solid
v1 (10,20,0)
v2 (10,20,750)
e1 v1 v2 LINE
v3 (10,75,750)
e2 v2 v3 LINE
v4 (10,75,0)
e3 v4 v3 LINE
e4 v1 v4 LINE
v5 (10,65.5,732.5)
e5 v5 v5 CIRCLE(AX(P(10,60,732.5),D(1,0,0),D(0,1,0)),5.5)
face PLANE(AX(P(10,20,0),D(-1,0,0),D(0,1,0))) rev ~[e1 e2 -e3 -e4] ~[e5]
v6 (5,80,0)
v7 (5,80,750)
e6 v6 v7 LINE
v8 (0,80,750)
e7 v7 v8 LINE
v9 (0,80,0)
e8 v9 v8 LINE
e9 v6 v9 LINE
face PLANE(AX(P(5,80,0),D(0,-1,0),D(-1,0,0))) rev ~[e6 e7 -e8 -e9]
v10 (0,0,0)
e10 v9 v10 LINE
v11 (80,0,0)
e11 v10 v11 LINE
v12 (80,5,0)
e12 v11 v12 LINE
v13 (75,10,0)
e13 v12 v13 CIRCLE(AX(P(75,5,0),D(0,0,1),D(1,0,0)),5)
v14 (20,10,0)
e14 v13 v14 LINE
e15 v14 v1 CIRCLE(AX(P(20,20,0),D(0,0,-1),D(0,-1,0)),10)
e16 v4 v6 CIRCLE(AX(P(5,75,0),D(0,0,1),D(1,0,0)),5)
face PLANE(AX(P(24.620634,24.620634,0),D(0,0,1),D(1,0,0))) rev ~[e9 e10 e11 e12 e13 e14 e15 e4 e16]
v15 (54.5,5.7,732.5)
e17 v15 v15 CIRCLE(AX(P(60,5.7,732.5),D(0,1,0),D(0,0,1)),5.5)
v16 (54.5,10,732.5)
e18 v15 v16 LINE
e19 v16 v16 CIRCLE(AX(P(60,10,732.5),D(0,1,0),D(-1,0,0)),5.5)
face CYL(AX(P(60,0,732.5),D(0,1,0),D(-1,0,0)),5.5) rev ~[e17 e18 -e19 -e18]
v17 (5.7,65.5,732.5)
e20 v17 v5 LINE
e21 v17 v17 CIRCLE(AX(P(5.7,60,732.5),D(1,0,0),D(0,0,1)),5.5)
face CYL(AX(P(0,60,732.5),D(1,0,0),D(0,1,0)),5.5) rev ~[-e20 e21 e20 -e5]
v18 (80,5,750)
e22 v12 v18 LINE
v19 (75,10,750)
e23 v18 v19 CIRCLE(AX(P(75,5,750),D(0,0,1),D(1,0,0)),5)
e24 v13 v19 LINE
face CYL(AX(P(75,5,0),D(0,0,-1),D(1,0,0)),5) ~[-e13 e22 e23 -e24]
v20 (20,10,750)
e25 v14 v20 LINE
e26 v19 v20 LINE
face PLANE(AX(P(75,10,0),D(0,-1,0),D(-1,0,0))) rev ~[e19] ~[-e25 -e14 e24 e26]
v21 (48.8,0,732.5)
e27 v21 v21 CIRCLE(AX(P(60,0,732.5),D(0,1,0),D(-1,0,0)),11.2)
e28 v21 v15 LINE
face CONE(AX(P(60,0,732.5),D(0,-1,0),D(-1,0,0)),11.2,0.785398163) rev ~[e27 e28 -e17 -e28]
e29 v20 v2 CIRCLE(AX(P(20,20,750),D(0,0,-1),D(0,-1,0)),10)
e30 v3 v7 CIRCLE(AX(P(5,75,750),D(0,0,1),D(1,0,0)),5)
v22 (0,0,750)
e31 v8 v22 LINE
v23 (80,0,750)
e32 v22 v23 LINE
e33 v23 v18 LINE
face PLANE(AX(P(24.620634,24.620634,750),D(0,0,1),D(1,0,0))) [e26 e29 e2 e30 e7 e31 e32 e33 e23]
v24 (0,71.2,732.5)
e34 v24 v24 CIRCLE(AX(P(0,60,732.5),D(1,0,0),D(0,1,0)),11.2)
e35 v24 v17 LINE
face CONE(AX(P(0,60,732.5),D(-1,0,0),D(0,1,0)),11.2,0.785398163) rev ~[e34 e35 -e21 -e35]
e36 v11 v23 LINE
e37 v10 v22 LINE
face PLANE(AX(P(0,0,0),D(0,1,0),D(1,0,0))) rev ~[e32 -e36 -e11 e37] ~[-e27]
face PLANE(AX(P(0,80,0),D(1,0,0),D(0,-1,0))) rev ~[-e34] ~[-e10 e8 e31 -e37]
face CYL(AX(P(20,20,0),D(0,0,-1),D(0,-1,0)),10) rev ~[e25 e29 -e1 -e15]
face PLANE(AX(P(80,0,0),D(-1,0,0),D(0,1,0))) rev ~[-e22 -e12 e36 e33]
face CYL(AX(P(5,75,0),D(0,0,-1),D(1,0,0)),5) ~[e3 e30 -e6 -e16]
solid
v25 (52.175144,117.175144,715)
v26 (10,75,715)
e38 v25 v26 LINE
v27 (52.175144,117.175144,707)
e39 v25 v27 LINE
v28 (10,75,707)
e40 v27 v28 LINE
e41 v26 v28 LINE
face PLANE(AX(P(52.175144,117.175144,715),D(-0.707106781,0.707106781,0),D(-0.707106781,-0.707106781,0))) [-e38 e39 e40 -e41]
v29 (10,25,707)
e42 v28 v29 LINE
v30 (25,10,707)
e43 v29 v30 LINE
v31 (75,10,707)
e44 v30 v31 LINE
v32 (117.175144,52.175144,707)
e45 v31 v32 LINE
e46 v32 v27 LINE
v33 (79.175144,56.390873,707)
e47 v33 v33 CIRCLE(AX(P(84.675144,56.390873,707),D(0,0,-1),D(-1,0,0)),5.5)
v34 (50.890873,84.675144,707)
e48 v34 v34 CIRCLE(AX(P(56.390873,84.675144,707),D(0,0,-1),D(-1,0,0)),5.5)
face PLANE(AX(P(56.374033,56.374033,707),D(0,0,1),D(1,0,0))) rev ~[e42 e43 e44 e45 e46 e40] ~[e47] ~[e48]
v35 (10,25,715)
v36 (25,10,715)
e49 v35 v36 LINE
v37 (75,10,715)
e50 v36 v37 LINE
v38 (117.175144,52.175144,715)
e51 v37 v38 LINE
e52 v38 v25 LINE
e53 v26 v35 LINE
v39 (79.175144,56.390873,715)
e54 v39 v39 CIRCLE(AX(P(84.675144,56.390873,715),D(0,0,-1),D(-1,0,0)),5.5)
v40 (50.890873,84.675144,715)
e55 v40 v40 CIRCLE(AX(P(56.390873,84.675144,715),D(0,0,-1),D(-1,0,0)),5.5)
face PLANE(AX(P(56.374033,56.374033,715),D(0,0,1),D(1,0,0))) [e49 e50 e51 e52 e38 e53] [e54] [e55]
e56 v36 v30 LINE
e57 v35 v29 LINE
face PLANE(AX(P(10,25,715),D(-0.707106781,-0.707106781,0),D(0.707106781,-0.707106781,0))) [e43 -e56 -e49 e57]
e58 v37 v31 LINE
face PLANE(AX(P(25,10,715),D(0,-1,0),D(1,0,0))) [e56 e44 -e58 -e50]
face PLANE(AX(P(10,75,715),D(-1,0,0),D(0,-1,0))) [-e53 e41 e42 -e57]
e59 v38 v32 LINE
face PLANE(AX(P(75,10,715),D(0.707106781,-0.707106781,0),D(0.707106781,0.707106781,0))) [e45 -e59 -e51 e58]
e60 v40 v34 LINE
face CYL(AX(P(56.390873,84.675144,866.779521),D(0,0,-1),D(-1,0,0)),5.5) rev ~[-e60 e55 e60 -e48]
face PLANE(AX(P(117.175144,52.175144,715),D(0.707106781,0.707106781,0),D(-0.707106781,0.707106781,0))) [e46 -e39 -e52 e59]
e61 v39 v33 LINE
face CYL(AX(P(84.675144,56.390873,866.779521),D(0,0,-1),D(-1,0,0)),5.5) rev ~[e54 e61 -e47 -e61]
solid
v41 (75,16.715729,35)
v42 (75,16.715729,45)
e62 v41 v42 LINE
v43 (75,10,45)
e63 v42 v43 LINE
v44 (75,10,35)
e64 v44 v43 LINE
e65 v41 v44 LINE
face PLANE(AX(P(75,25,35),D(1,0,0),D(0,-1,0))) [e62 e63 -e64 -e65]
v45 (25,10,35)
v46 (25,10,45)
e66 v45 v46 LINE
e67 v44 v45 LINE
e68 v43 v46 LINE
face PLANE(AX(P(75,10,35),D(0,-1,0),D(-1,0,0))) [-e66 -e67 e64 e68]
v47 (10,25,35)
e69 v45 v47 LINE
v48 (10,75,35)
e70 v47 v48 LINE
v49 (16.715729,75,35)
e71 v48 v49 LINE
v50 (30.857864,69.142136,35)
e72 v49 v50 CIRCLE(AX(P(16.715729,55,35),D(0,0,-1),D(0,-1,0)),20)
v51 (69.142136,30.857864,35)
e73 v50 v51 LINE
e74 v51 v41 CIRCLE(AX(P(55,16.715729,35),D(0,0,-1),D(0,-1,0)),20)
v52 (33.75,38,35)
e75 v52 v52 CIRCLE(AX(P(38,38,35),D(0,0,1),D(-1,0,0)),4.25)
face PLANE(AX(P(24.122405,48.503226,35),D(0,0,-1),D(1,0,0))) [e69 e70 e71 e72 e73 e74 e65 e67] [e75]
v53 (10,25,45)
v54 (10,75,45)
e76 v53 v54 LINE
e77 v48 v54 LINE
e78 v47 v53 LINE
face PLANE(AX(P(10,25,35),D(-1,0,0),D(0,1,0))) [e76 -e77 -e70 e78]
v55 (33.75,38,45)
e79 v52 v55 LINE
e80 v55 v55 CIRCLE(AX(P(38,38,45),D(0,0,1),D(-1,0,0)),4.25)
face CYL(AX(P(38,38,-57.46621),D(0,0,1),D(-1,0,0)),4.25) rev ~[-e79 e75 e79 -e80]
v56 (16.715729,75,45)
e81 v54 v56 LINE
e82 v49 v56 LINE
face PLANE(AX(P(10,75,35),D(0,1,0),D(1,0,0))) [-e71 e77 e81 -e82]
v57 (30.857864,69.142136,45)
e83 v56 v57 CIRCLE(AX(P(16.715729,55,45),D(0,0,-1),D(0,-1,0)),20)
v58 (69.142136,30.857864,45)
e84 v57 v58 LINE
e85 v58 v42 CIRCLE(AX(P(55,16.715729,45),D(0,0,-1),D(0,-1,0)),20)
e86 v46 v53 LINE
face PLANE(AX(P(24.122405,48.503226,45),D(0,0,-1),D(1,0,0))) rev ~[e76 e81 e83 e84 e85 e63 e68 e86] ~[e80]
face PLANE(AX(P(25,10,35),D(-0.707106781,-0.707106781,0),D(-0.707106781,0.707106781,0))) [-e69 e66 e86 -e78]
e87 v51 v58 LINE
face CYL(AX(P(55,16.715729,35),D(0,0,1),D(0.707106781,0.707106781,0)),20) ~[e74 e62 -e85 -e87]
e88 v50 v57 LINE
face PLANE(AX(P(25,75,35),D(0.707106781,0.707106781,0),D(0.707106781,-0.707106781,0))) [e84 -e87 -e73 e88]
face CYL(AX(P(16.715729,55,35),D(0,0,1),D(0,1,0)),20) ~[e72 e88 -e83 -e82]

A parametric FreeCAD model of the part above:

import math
import FreeCAD as App
import Part
import Sketcher


def edges_at(feature, points):
    """Names of the edges that pass closest to the given points."""
    edges = feature.Shape.Edges
    near = lambda p: min(range(len(edges)), key=lambda i: edges[i].distToShape(Part.Vertex(*p))[0])
    return sorted({f"Edge{near(p) + 1}" for p in points})


def add_polygon(sketch, points):
    """Adds a closed chain of lines whose ends are joined by coincident constraints."""
    first, n = sketch.GeometryCount, len(points)
    for a, b in zip(points, points[1:] + points[:1]):
        sketch.addGeometry(Part.LineSegment(App.Vector(*a, 0), App.Vector(*b, 0)), False)
    for i in range(n):
        sketch.addConstraint(Sketcher.Constraint("Coincident", first + i, 2, first + (i + 1) % n, 1))

doc = App.newDocument("Part")
params = doc.addObject("Spreadsheet::Sheet", "Params")
for row, (alias, value) in enumerate([
    ("sketch1_radius", "5 mm"),
    ("sketch1_radius2", "10 mm"),
    ("sketch1_width", "5 mm"),
    ("sketch1_width2", "80 mm"),
    ("pad1_length", "750 mm"),
    ("sketch2_diameter", "11 mm"),
    ("hole_diameter", "11 mm"),
    ("hole_csink_diameter", "22.4 mm"),
    ("sketch3_diameter", "11 mm"),
    ("hole2_diameter", "11 mm"),
    ("hole2_csink_diameter", "22.4 mm"),
    ("sketch4_width", "50 mm"),
    ("pad2_length", "8 mm"),
    ("sketch5_diameter", "11 mm"),
    ("hole3_diameter", "11 mm"),
    ("sketch6_width", "15 mm"),
    ("sketch6_width2", "50 mm"),
    ("pad3_length", "10 mm"),
    ("fillet_radius", "20 mm"),
    ("sketch7_diameter", "8.5 mm"),
    ("hole4_diameter", "8.5 mm"),
], start=1):
    params.set(f"A{row}", alias)
    params.set(f"B{row}", "=" + value)
    params.setAlias(f"B{row}", alias)

body = doc.addObject("PartDesign::Body", "Body")

sketch1 = doc.addObject("Sketcher::SketchObject", "Sketch")
body.addObject(sketch1)
sketch1.AttachmentSupport = (doc.XY_Plane, [""])
sketch1.MapMode = "FlatFace"
sketch1.addGeometry([
    Part.LineSegment(App.Vector(5, 80, 0), App.Vector(0, 80, 0)),
    Part.LineSegment(App.Vector(0, 80, 0), App.Vector(0, 0, 0)),
    Part.LineSegment(App.Vector(0, 0, 0), App.Vector(80, 0, 0)),
    Part.LineSegment(App.Vector(80, 0, 0), App.Vector(80, 5, 0)),
    Part.ArcOfCircle(Part.Circle(App.Vector(75, 5, 0), App.Vector(0, 0, 1), 5), math.radians(0), math.radians(90)),
    Part.LineSegment(App.Vector(75, 10, 0), App.Vector(20, 10, 0)),
    Part.ArcOfCircle(Part.Circle(App.Vector(20, 20, 0), App.Vector(0, 0, 1), 10), math.radians(180), math.radians(270)),
    Part.LineSegment(App.Vector(10, 20, 0), App.Vector(10, 75, 0)),
    Part.ArcOfCircle(Part.Circle(App.Vector(5, 75, 0), App.Vector(0, 0, 1), 5), math.radians(0), math.radians(90)),
], False)
sketch1.addConstraint([
    Sketcher.Constraint("Coincident", 0, 2, 1, 1),
    Sketcher.Constraint("Coincident", 1, 2, 2, 1),
    Sketcher.Constraint("Coincident", 2, 2, 3, 1),
    Sketcher.Constraint("Tangent", 3, 2, 4, 1),
    Sketcher.Constraint("Tangent", 4, 2, 5, 1),
    Sketcher.Constraint("Tangent", 5, 2, 6, 2),
    Sketcher.Constraint("Tangent", 6, 1, 7, 1),
    Sketcher.Constraint("Tangent", 7, 2, 8, 1),
    Sketcher.Constraint("Tangent", 8, 2, 0, 1),
    Sketcher.Constraint("Horizontal", 0),
    Sketcher.Constraint("Vertical", 1),
    Sketcher.Constraint("Horizontal", 2),
    Sketcher.Constraint("Vertical", 3),
    Sketcher.Constraint("Horizontal", 5),
    Sketcher.Constraint("Vertical", 7),
    Sketcher.Constraint("Coincident", 1, 2, -1, 1),
    Sketcher.Constraint("Equal", 4, 8),
    Sketcher.Constraint("Equal", 2, 1),
    Sketcher.Constraint("Equal", 0, 3),
    Sketcher.Constraint("Radius", 4, 5.0),
    Sketcher.Constraint("Radius", 6, 10.0),
    Sketcher.Constraint("DistanceX", 0, 2, 0, 1, 5.0),
    Sketcher.Constraint("DistanceX", 2, 1, 2, 2, 80.0),
])
sketch1.setExpression("Constraints[19]", "Params.sketch1_radius")
sketch1.setExpression("Constraints[20]", "Params.sketch1_radius2")
sketch1.setExpression("Constraints[21]", "Params.sketch1_width")
sketch1.setExpression("Constraints[22]", "Params.sketch1_width2")
pad1 = doc.addObject("PartDesign::Pad", "Pad")
body.addObject(pad1)
pad1.Profile = sketch1
pad1.setExpression("Length", "Params.pad1_length")

sketch2 = doc.addObject("Sketcher::SketchObject", "Sketch001")
body.addObject(sketch2)
sketch2.AttachmentSupport = (doc.XZ_Plane, [""])
sketch2.MapMode = "FlatFace"
sketch2.addGeometry(Part.Circle(App.Vector(60, 732.5, 0), App.Vector(0, 0, 1), 5.5), False)
sketch2.addConstraint([
    Sketcher.Constraint("Diameter", 0, 11.0),
    Sketcher.Constraint("DistanceX", -1, 1, 0, 3, 60.0),
    Sketcher.Constraint("DistanceY", -1, 1, 0, 3, 732.5),
])
sketch2.setExpression("Constraints[0]", "Params.sketch2_diameter")
doc.recompute()
hole = doc.addObject("PartDesign::Hole", "Hole")
body.addObject(hole)
hole.Profile = sketch2
hole.ThreadType = "None"
hole.setExpression("Diameter", "Params.hole_diameter")
hole.DepthType = "ThroughAll"
hole.HoleCutType = "Countersink"
hole.setExpression("HoleCutDiameter", "Params.hole_csink_diameter")
hole.HoleCutCountersinkAngle = 90

sketch3 = doc.addObject("Sketcher::SketchObject", "Sketch002")
body.addObject(sketch3)
sketch3.AttachmentSupport = (doc.YZ_Plane, [""])
sketch3.MapMode = "FlatFace"
sketch3.addGeometry(Part.Circle(App.Vector(60, 732.5, 0), App.Vector(0, 0, 1), 5.5), False)
sketch3.addConstraint([
    Sketcher.Constraint("Diameter", 0, 11.0),
    Sketcher.Constraint("DistanceX", -1, 1, 0, 3, 60.0),
    Sketcher.Constraint("DistanceY", -1, 1, 0, 3, 732.5),
])
sketch3.setExpression("Constraints[0]", "Params.sketch3_diameter")
doc.recompute()
hole2 = doc.addObject("PartDesign::Hole", "Hole001")
body.addObject(hole2)
hole2.Profile = sketch3
hole2.ThreadType = "None"
hole2.setExpression("Diameter", "Params.hole2_diameter")
hole2.DepthType = "ThroughAll"
hole2.HoleCutType = "Countersink"
hole2.setExpression("HoleCutDiameter", "Params.hole2_csink_diameter")
hole2.HoleCutCountersinkAngle = 90
hole2.Reversed = True
body2 = doc.addObject("PartDesign::Body", "Body001")

sketch4 = doc.addObject("Sketcher::SketchObject", "Sketch003")
body2.addObject(sketch4)
sketch4.AttachmentSupport = (doc.getObject("XY_Plane001"), [""])
sketch4.MapMode = "FlatFace"
sketch4.AttachmentOffset = App.Placement(App.Vector(0, 0, 715), App.Rotation())
add_polygon(sketch4, [(52.175144, 117.175144), (10, 75), (10, 25), (25, 10), (75, 10), (117.175144, 52.175144)])
sketch4.addConstraint([
    Sketcher.Constraint("Vertical", 1),
    Sketcher.Constraint("Horizontal", 3),
    Sketcher.Constraint("Perpendicular", 0, 2),
    Sketcher.Constraint("Perpendicular", 2, 4),
    Sketcher.Constraint("Perpendicular", 4, 5),
    Sketcher.Constraint("Equal", 3, 1),
    Sketcher.Constraint("Equal", 0, 4),
    Sketcher.Constraint("DistanceX", 3, 1, 3, 2, 50.0),
    Sketcher.Constraint("DistanceX", -1, 1, 0, 2, 10.0),
    Sketcher.Constraint("DistanceY", -1, 1, 0, 2, 75.0),
    Sketcher.Constraint("DistanceX", -1, 1, 2, 2, 25.0),
    Sketcher.Constraint("Distance", 0, 59.644661),
])
sketch4.setExpression("Constraints[13]", "Params.sketch4_width")
pad2 = doc.addObject("PartDesign::Pad", "Pad001")
body2.addObject(pad2)
pad2.Profile = sketch4
pad2.setExpression("Length", "Params.pad2_length")
pad2.Reversed = True

sketch5 = doc.addObject("Sketcher::SketchObject", "Sketch004")
body2.addObject(sketch5)
sketch5.AttachmentSupport = (doc.getObject("XY_Plane001"), [""])
sketch5.MapMode = "FlatFace"
sketch5.AttachmentOffset = App.Placement(App.Vector(0, 0, 715), App.Rotation())
sketch5.addGeometry([
    Part.Circle(App.Vector(56.390873, 84.675144, 0), App.Vector(0, 0, 1), 5.5),
    Part.Circle(App.Vector(84.675144, 56.390873, 0), App.Vector(0, 0, 1), 5.5),
], False)
sketch5.addConstraint([
    Sketcher.Constraint("Equal", 0, 1),
    Sketcher.Constraint("Diameter", 0, 11.0),
    Sketcher.Constraint("DistanceX", 0, 3, 1, 3, 28.284271),
    Sketcher.Constraint("DistanceY", 1, 3, 0, 3, 28.284271),
    Sketcher.Constraint("DistanceX", -1, 1, 0, 3, 56.390873),
    Sketcher.Constraint("DistanceY", -1, 1, 0, 3, 84.675144),
])
sketch5.setExpression("Constraints[1]", "Params.sketch5_diameter")
doc.recompute()
hole3 = doc.addObject("PartDesign::Hole", "Hole002")
body2.addObject(hole3)
hole3.Profile = sketch5
hole3.ThreadType = "None"
hole3.setExpression("Diameter", "Params.hole3_diameter")
hole3.DepthType = "ThroughAll"
body3 = doc.addObject("PartDesign::Body", "Body002")

sketch6 = doc.addObject("Sketcher::SketchObject", "Sketch005")
body3.addObject(sketch6)
sketch6.AttachmentSupport = (doc.getObject("XY_Plane002"), [""])
sketch6.MapMode = "FlatFace"
sketch6.AttachmentOffset = App.Placement(App.Vector(0, 0, 35), App.Rotation())
add_polygon(sketch6, [(10, 25), (10, 75), (25, 75), (75, 25), (75, 10), (25, 10)])
sketch6.addConstraint([
    Sketcher.Constraint("Vertical", 0),
    Sketcher.Constraint("Horizontal", 1),
    Sketcher.Constraint("Vertical", 3),
    Sketcher.Constraint("Horizontal", 4),
    Sketcher.Constraint("Parallel", 2, 5),
    Sketcher.Constraint("Horizontal", 2, 2, 5, 2),
    Sketcher.Constraint("Vertical", 1, 2, 4, 2),
    Sketcher.Constraint("Equal", 4, 0),
    Sketcher.Constraint("DistanceX", 1, 1, 1, 2, 15.0),
    Sketcher.Constraint("DistanceX", 4, 2, 4, 1, 50.0),
    Sketcher.Constraint("DistanceX", -1, 1, 0, 2, 10.0),
    Sketcher.Constraint("DistanceY", -1, 1, 0, 2, 75.0),
])
sketch6.setExpression("Constraints[14]", "Params.sketch6_width")
sketch6.setExpression("Constraints[15]", "Params.sketch6_width2")
pad3 = doc.addObject("PartDesign::Pad", "Pad002")
body3.addObject(pad3)
pad3.Profile = sketch6
pad3.setExpression("Length", "Params.pad3_length")
doc.recompute()

fillet = doc.addObject("PartDesign::Fillet", "Fillet")
body3.addObject(fillet)
fillet.Base = (pad3, edges_at(pad3, [(25, 75, 40), (75, 25, 40)]))
fillet.setExpression("Radius", "Params.fillet_radius")

sketch7 = doc.addObject("Sketcher::SketchObject", "Sketch006")
body3.addObject(sketch7)
sketch7.AttachmentSupport = (doc.getObject("XY_Plane002"), [""])
sketch7.MapMode = "FlatFace"
sketch7.AttachmentOffset = App.Placement(App.Vector(0, 0, 35), App.Rotation())
sketch7.addGeometry(Part.Circle(App.Vector(38, 38, 0), App.Vector(0, 0, 1), 4.25), False)
sketch7.addConstraint([
    Sketcher.Constraint("Diameter", 0, 8.5),
    Sketcher.Constraint("DistanceX", -1, 1, 0, 3, 38.0),
    Sketcher.Constraint("DistanceY", -1, 1, 0, 3, 38.0),
])
sketch7.setExpression("Constraints[0]", "Params.sketch7_diameter")
doc.recompute()
hole4 = doc.addObject("PartDesign::Hole", "Hole003")
body3.addObject(hole4)
hole4.Profile = sketch7
hole4.ThreadType = "None"
hole4.setExpression("Diameter", "Params.hole4_diameter")
hole4.DepthType = "ThroughAll"
hole4.Reversed = True

doc.recompute()
